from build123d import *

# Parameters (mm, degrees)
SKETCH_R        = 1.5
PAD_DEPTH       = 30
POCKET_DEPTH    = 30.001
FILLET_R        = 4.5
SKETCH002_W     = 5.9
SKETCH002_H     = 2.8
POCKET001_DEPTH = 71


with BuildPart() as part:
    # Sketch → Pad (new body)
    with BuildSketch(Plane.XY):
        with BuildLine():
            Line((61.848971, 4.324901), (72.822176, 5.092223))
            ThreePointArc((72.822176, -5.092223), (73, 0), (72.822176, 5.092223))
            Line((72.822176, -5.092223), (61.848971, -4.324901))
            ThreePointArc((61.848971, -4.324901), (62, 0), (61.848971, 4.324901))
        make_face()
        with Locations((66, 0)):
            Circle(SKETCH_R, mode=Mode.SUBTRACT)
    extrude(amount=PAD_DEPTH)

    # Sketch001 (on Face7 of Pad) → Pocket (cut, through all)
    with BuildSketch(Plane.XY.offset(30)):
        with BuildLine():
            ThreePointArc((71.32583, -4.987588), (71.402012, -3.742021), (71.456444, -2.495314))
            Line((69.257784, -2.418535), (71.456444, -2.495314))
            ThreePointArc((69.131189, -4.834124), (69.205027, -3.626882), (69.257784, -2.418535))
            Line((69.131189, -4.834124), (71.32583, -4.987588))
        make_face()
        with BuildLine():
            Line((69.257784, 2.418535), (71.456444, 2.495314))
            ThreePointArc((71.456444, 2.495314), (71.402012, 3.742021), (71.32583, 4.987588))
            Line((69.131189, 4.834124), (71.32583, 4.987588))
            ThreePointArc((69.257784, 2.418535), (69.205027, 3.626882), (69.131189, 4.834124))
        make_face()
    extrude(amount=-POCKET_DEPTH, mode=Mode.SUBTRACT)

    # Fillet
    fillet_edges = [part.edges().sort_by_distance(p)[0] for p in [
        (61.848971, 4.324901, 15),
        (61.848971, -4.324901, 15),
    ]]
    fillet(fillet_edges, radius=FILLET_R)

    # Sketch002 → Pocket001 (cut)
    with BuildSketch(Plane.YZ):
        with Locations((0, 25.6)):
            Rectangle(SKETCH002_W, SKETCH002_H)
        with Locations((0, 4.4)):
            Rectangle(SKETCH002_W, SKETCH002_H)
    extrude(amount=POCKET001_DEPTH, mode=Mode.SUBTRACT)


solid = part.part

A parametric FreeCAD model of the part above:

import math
import FreeCAD as App
import Part
import Sketcher
from FreeCAD import Vector
Q = App.Units.Quantity


def edges_at(feature, points):
    """Names of the edges that pass closest to the given points."""
    edges = feature.Shape.Edges
    near = lambda p: min(range(len(edges)), key=lambda i: edges[i].distToShape(Part.Vertex(*p))[0])
    return sorted({f"Edge{near(p) + 1}" for p in points})

doc = App.newDocument("Part")
body = doc.addObject("PartDesign::Body", "Body")

# Sketch on XY plane
sketch1 = doc.addObject("Sketcher::SketchObject", "Sketch")
body.addObject(sketch1)
sketch1.AttachmentSupport = (doc.XY_Plane, [""])
sketch1.MapMode = "FlatFace"
sketch1.addGeometry([
    Part.LineSegment(Vector(72.8, 5.1, 0), Vector(61.8, 4.3, 0)),  # 0
    Part.ArcOfCircle(Part.Circle(Vector(0, 0, 0), Vector(0, 0, 1), 62), math.radians(-4), math.radians(4)),  # 1
    Part.LineSegment(Vector(61.8, -4.3, 0), Vector(72.8, -5.1, 0)),  # 2
    Part.ArcOfCircle(Part.Circle(Vector(0, 0, 0), Vector(0, 0, 1), 73), math.radians(-4), math.radians(4)),  # 3
    Part.Circle(Vector(66, 0, 0), Vector(0, 0, 1), 1.5),  # 4
], False)
sketch1.addConstraint([
    Sketcher.Constraint("Coincident", 0, 2, 1, 2),
    Sketcher.Constraint("Coincident", 1, 1, 2, 1),
    Sketcher.Constraint("Coincident", 2, 2, 3, 1),
    Sketcher.Constraint("Coincident", 3, 2, 0, 1),
    Sketcher.Constraint("Symmetric", 0, 2, 1, 1, -1),
    Sketcher.Constraint("Symmetric", 2, 2, 3, 2, -1),
    Sketcher.Constraint("PointOnObject", 4, 3, -1),
    Sketcher.Constraint("Diameter", 4, Q("3 mm")),
    Sketcher.Constraint("Angle", 0, Q("-175.999996 deg")),
    Sketcher.Constraint("Distance", 0, Q("11.000001 mm")),
    Sketcher.Constraint("DistanceX", -1, 1, 4, 3, Q("66 mm")),
    Sketcher.Constraint("Radius", 1, Q("61.999942 mm")),
    Sketcher.Constraint("Radius", 3, Q("73.000147 mm")),
    Sketcher.Constraint("DistanceY", -1, 1, 0, 2, Q("4.324901 mm")),
    Sketcher.Constraint("DistanceX", -1, 1, 0, 2, Q("61.848971 mm")),
])
pad1 = doc.addObject("PartDesign::Pad", "Pad")
body.addObject(pad1)
pad1.Profile = sketch1
pad1.Length = 30

# Sketch on XY plane
sketch2 = doc.addObject("Sketcher::SketchObject", "Sketch001")
body.addObject(sketch2)
sketch2.AttachmentSupport = (doc.XY_Plane, [""])
sketch2.MapMode = "FlatFace"
sketch2.AttachmentOffset = App.Placement(Vector(0, 0, 30), App.Rotation())
sketch2.addGeometry([
    Part.ArcOfCircle(Part.Circle(Vector(0.000854, -0.00006, 0), Vector(0, 0, 1), 71.499144), math.radians(-4), math.radians(-1.999975)),  # 0
    Part.LineSegment(Vector(71.456444, -2.495314, 0), Vector(69.257784, -2.418535, 0)),  # 1
    Part.ArcOfCircle(Part.Circle(Vector(0.001576, -0.000102, 0), Vector(0, 0, 1), 69.298421), math.radians(-4.000007), math.radians(-1.999962)),  # 2
    Part.LineSegment(Vector(69.131189, -4.834124, 0), Vector(71.32583, -4.987588, 0)),  # 3
    Part.LineSegment(Vector(69.257784, 2.418535, 0), Vector(71.456444, 2.495314, 0)),  # 4
    Part.ArcOfCircle(Part.Circle(Vector(0.000854, 0.00006, 0), Vector(0, 0, 1), 71.499144), math.radians(1.999975), math.radians(4)),  # 5
    Part.LineSegment(Vector(71.32583, 4.987588, 0), Vector(69.131189, 4.834124, 0)),  # 6
    Part.ArcOfCircle(Part.Circle(Vector(0.001576, 0.000102, 0), Vector(0, 0, 1), 69.298421), math.radians(1.999962), math.radians(4.000007)),  # 7
], False)
sketch2.addConstraint([
    Sketcher.Constraint("Coincident", 0, 2, 1, 1),
    Sketcher.Constraint("Coincident", 1, 2, 2, 2),
    Sketcher.Constraint("Coincident", 2, 1, 3, 1),
    Sketcher.Constraint("Coincident", 3, 2, 0, 1),
    Sketcher.Constraint("Coincident", 4, 2, 5, 1),
    Sketcher.Constraint("Coincident", 5, 2, 6, 1),
    Sketcher.Constraint("Coincident", 6, 2, 7, 2),
    Sketcher.Constraint("Coincident", 7, 1, 4, 1),
    Sketcher.Constraint("Equal", 0, 5),
    Sketcher.Constraint("Equal", 2, 7),
    Sketcher.Constraint("Symmetric", 0, 3, 5, 3, -1),
    Sketcher.Constraint("Symmetric", 2, 3, 7, 3, -1),
    Sketcher.Constraint("Vertical", 0, 2, 4, 2),
    Sketcher.Constraint("Vertical", 3, 2, 5, 2),
    Sketcher.Constraint("Vertical", 2, 1, 6, 2),
    Sketcher.Constraint("Vertical", 1, 2, 7, 1),
    Sketcher.Constraint("Equal", 1, 3),
    Sketcher.Constraint("Angle", 1, Q("177.999997 deg")),
    Sketcher.Constraint("Angle", 3, Q("-3.999994 deg")),
    Sketcher.Constraint("Distance", 1, Q("2.2 mm")),
    Sketcher.Constraint("Radius", 2, Q("69.298421 mm")),
    Sketcher.Constraint("Radius", 0, Q("71.499144 mm")),
    Sketcher.Constraint("DistanceY", 2, 3, -1, 1, Q("0.000102 mm")),
    Sketcher.Constraint("DistanceY", 3, 2, 4, 2, Q("7.482902 mm")),
    Sketcher.Constraint("DistanceX", -1, 1, 2, 1, Q("69.131189 mm")),
    Sketcher.Constraint("DistanceX", 0, 3, 0, 2, Q("71.45559 mm")),
])
pocket1 = doc.addObject("PartDesign::Pocket", "Pocket")
body.addObject(pocket1)
pocket1.Profile = sketch2
pocket1.Type = "ThroughAll"
doc.recompute()

fillet = doc.addObject("PartDesign::Fillet", "Fillet")
body.addObject(fillet)
fillet.Base = (pocket1, edges_at(pocket1, [(61.849, 4.325, 15), (61.849, -4.325, 15)]))
fillet.Radius = 4.5

# Sketch on YZ plane
sketch3 = doc.addObject("Sketcher::SketchObject", "Sketch002")
body.addObject(sketch3)
sketch3.AttachmentSupport = (doc.YZ_Plane, [""])
sketch3.MapMode = "FlatFace"
sketch3.addGeometry([
    Part.LineSegment(Vector(-3, 27, 0), Vector(-3, 24.2, 0)),  # 0
    Part.LineSegment(Vector(-3, 24.2, 0), Vector(3, 24.2, 0)),  # 1
    Part.LineSegment(Vector(3, 24.2, 0), Vector(3, 27, 0)),  # 2
    Part.LineSegment(Vector(3, 27, 0), Vector(-3, 27, 0)),  # 3
    Part.LineSegment(Vector(-3, 5.8, 0), Vector(-3, 3, 0)),  # 4
    Part.LineSegment(Vector(-3, 3, 0), Vector(3, 3, 0)),  # 5
    Part.LineSegment(Vector(3, 3, 0), Vector(3, 5.8, 0)),  # 6
    Part.LineSegment(Vector(3, 5.8, 0), Vector(-3, 5.8, 0)),  # 7
], False)
sketch3.addConstraint([
    Sketcher.Constraint("Coincident", 0, 2, 1, 1),
    Sketcher.Constraint("Coincident", 1, 2, 2, 1),
    Sketcher.Constraint("Coincident", 2, 2, 3, 1),
    Sketcher.Constraint("Coincident", 3, 2, 0, 1),
    Sketcher.Constraint("Coincident", 4, 2, 5, 1),
    Sketcher.Constraint("Coincident", 5, 2, 6, 1),
    Sketcher.Constraint("Coincident", 6, 2, 7, 1),
    Sketcher.Constraint("Coincident", 7, 2, 4, 1),
    Sketcher.Constraint("Vertical", 0),
    Sketcher.Constraint("Horizontal", 1),
    Sketcher.Constraint("Vertical", 2),
    Sketcher.Constraint("Horizontal", 3),
    Sketcher.Constraint("Vertical", 4),
    Sketcher.Constraint("Horizontal", 5),
    Sketcher.Constraint("Vertical", 6),
    Sketcher.Constraint("Horizontal", 7),
    Sketcher.Constraint("Vertical", 3, 2, 4, 2),
    Sketcher.Constraint("Vertical", 2, 2, 5, 2),
    Sketcher.Constraint("Equal", 2, 4),
    Sketcher.Constraint("DistanceX", 1, 1, 1, 2, Q("5.9 mm")),
    Sketcher.Constraint("DistanceY", 0, 2, 0, 1, Q("2.8 mm")),
    Sketcher.Constraint("DistanceY", -1, 1, 2, 2, Q("27 mm")),
    Sketcher.Constraint("DistanceY", -1, 1, 4, 2, Q("3 mm")),
    Sketcher.Constraint("DistanceX", 0, 2, -1, 1, Q("2.95 mm")),
])
pocket2 = doc.addObject("PartDesign::Pocket", "Pocket001")
body.addObject(pocket2)
pocket2.Profile = sketch3
pocket2.Length = 71
pocket2.Reversed = True

doc.recompute()
